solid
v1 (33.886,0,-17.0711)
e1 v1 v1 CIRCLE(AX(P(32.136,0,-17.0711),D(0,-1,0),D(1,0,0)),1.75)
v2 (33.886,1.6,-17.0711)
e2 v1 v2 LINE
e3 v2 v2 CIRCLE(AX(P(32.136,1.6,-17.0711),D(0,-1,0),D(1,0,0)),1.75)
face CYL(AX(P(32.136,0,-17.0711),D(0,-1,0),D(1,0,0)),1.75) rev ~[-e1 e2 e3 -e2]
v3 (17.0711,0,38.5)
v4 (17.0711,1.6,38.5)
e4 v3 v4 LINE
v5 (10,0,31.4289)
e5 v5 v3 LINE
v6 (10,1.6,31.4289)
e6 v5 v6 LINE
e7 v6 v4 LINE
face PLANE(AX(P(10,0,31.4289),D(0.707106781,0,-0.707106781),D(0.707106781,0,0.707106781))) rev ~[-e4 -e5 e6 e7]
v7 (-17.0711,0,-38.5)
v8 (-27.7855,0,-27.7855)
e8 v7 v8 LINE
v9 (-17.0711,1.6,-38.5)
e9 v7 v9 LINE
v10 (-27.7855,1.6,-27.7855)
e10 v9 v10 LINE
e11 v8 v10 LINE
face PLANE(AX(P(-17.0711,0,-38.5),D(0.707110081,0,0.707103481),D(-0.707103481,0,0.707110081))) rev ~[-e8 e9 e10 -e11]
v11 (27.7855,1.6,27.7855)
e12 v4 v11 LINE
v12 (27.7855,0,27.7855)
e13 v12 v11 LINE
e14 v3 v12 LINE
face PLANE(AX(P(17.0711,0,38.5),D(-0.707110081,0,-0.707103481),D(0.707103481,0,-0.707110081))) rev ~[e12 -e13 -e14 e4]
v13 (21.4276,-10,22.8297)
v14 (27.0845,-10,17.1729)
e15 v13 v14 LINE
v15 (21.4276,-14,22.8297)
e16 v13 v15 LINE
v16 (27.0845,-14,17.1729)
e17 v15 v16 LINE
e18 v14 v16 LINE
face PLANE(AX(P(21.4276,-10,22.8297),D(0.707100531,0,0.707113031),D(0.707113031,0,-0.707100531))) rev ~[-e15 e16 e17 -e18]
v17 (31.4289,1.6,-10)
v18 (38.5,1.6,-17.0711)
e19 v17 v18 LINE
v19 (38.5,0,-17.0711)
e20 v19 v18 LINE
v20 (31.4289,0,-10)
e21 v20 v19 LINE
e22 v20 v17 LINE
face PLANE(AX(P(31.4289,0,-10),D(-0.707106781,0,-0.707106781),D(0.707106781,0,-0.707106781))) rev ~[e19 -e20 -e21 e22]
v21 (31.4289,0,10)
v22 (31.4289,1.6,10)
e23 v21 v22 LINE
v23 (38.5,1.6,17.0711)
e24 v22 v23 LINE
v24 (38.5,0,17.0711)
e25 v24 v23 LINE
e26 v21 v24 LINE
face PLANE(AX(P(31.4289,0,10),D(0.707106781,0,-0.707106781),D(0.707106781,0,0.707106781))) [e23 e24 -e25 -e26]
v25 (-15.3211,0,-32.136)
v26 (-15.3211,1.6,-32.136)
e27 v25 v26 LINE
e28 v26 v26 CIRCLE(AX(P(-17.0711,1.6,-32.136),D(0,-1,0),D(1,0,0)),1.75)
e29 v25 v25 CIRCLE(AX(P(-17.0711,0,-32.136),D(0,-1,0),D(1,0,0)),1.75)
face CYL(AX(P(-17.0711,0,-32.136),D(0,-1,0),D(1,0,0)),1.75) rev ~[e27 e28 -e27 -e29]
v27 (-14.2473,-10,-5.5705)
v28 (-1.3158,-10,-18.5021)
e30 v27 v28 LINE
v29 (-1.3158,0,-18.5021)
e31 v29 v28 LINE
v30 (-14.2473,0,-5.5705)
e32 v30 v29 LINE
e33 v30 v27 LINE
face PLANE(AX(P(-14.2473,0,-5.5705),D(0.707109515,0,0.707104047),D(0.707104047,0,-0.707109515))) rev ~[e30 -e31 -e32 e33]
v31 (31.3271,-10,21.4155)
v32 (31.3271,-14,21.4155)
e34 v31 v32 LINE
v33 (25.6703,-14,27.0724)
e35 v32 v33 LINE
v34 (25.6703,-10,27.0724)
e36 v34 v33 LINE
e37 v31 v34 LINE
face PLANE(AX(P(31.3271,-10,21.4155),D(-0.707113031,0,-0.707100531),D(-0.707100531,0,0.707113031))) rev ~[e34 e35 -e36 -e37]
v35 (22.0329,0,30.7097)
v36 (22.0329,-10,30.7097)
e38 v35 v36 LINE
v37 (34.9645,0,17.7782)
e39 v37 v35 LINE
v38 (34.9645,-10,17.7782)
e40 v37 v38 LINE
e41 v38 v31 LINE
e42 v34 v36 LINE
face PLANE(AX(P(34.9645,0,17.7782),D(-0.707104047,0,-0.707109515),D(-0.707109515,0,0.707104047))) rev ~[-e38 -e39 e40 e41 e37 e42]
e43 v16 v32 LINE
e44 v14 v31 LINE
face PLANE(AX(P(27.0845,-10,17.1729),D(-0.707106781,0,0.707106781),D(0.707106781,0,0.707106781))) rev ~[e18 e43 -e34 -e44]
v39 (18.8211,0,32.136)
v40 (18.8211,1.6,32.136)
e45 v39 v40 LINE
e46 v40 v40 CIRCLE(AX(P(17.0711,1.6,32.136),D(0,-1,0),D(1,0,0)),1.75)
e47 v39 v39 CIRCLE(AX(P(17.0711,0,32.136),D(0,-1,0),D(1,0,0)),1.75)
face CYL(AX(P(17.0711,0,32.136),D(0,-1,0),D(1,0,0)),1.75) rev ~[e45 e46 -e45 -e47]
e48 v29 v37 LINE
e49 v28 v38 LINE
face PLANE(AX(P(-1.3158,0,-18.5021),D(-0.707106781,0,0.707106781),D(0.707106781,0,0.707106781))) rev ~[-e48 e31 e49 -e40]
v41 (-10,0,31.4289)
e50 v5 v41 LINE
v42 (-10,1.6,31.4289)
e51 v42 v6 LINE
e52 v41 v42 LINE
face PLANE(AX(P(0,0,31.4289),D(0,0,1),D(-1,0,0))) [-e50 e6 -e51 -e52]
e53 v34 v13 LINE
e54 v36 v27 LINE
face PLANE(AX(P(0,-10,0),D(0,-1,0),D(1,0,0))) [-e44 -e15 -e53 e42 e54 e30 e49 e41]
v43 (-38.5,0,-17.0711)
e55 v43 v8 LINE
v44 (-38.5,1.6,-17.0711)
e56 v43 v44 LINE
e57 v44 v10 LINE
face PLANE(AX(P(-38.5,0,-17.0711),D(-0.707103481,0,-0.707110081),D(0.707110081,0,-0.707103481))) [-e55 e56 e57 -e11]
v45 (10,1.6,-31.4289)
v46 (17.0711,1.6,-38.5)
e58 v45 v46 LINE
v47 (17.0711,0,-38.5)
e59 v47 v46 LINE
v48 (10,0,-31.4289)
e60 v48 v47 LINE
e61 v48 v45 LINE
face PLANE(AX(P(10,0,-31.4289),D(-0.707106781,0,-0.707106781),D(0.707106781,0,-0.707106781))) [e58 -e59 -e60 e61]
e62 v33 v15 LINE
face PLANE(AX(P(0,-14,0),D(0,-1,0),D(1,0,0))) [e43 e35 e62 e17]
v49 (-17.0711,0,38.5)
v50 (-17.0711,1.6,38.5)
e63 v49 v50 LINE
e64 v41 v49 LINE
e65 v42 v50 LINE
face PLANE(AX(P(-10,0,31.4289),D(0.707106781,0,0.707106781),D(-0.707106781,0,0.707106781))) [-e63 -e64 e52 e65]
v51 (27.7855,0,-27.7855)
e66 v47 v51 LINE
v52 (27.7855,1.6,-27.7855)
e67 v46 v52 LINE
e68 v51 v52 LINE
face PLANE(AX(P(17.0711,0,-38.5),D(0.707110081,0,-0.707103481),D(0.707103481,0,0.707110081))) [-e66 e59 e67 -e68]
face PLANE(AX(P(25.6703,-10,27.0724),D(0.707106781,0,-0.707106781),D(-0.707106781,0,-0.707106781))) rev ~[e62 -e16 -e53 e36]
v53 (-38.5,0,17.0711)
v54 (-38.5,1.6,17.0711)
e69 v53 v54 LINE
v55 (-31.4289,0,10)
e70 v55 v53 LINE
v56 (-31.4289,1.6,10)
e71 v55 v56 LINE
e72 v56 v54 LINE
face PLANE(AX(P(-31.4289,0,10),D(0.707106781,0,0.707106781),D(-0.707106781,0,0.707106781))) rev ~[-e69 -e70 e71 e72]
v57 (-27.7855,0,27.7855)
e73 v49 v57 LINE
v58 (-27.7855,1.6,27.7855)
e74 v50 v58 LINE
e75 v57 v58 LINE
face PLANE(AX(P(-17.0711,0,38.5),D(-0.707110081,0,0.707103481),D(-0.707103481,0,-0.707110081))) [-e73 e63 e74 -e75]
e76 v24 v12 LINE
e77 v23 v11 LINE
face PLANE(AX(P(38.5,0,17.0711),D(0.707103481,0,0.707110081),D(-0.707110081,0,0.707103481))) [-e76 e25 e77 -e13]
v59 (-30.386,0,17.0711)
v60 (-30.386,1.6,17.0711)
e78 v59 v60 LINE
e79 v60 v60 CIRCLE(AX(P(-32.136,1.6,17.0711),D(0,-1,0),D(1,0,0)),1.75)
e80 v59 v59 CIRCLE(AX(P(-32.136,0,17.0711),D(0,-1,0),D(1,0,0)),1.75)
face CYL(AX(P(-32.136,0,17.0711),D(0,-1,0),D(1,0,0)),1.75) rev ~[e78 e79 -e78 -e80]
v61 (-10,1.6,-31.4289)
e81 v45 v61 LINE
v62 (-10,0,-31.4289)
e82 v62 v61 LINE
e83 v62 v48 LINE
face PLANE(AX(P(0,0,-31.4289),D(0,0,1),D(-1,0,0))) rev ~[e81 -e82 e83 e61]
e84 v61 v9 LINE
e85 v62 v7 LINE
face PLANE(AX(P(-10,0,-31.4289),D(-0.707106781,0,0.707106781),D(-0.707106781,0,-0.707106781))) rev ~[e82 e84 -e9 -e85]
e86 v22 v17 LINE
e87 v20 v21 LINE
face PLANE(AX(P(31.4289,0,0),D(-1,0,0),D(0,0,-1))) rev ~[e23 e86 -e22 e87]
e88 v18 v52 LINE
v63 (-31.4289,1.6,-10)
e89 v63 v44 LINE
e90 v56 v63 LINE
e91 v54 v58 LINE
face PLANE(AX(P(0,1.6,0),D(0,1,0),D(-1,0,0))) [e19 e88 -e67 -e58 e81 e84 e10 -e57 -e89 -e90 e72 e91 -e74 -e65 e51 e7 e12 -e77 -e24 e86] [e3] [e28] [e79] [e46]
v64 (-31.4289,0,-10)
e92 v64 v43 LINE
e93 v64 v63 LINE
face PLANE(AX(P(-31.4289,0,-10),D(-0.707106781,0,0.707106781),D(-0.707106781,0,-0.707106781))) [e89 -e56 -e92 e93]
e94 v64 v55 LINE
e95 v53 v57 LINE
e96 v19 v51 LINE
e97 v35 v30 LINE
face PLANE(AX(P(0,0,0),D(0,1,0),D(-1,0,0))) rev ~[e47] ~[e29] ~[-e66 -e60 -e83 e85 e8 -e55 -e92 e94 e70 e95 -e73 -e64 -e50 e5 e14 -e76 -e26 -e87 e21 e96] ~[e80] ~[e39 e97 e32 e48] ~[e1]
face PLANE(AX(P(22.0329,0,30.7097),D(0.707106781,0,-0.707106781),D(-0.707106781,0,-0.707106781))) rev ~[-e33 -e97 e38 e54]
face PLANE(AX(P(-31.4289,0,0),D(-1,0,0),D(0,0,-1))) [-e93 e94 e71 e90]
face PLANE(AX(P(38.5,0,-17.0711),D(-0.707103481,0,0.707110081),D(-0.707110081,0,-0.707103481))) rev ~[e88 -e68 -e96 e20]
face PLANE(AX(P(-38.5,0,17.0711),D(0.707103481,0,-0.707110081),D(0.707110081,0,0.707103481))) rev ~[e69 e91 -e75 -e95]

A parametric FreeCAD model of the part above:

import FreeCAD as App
import Part
import Sketcher

V = App.Vector
Q = App.Units.Quantity


def add_polygon(sketch, points):
    """Adds a closed chain of lines whose ends are joined by coincident constraints."""
    first, n = sketch.GeometryCount, len(points)
    for a, b in zip(points, points[1:] + points[:1]):
        sketch.addGeometry(Part.LineSegment(App.Vector(*a, 0), App.Vector(*b, 0)), False)
    for i in range(n):
        sketch.addConstraint(Sketcher.Constraint("Coincident", first + i, 2, first + (i + 1) % n, 1))

doc = App.newDocument("Part")
params = doc.addObject("Spreadsheet::Sheet", "Params")
for row, (alias, value) in enumerate([
    ("sketch1_length", "10 mm"),
    ("pad1_length", "1.6 mm"),
    ("sketch2_diameter", "3.5 mm"),
    ("pad2_length", "10 mm"),
    ("sketch4_length", "6 mm"),
    ("sketch4_length2", "8 mm"),
    ("pad3_length", "4 mm"),
], start=1):
    params.set(f"A{row}", alias)
    params.set(f"B{row}", "=" + value)
    params.setAlias(f"B{row}", alias)

body = doc.addObject("PartDesign::Body", "Body")

sketch1 = doc.addObject("Sketcher::SketchObject", "Sketch")
body.addObject(sketch1)
sketch1.AttachmentSupport = (doc.XZ_Plane, [""])
sketch1.MapMode = "FlatFace"
add_polygon(sketch1, [(-31, -10), (-31, 10), (-38, 17), (-28, 28), (-17, 38), (-10, 31), (10, 31), (17, 38), (28, 28), (38, 17), (31, 10), (31, -10), (38, -17), (28, -28), (17, -38), (10, -31), (-10, -31), (-17, -38), (-28, -28), (-38, -17)])
sketch1.addConstraint([
    Sketcher.Constraint("Vertical", 0),
    Sketcher.Constraint("Horizontal", 5),
    Sketcher.Constraint("Vertical", 10),
    Sketcher.Constraint("Horizontal", 15),
    Sketcher.Constraint("Symmetric", 0, 2, 10, 2, -1, 1),
    Sketcher.Constraint("Symmetric", 1, 2, 11, 2, -1, 1),
    Sketcher.Constraint("Symmetric", 2, 2, 12, 2, -1, 1),
    Sketcher.Constraint("Symmetric", 3, 2, 13, 2, -1, 1),
    Sketcher.Constraint("Symmetric", 4, 2, 14, 2, -1, 1),
    Sketcher.Constraint("Symmetric", 6, 2, 16, 2, -1, 1),
    Sketcher.Constraint("Symmetric", 7, 2, 17, 2, -1, 1),
    Sketcher.Constraint("Symmetric", 8, 2, 18, 2, -1, 1),
    Sketcher.Constraint("Symmetric", 3, 2, 6, 2, -2),
    Sketcher.Constraint("Symmetric", 2, 2, 7, 2, -2),
    Sketcher.Constraint("Symmetric", 1, 2, 8, 2, -2),
    Sketcher.Constraint("Perpendicular", 1, 2),
    Sketcher.Constraint("Parallel", 2, 3),
    Sketcher.Constraint("Perpendicular", 3, 4),
    Sketcher.Constraint("Perpendicular", 4, 6),
    Sketcher.Constraint("Perpendicular", 6, 7),
    Sketcher.Constraint("Perpendicular", 8, 9),
    Sketcher.Constraint("Perpendicular", 14, 16),
    Sketcher.Constraint("Perpendicular", 18, 19),
    Sketcher.Constraint("Equal", 15, 0),
    Sketcher.Constraint("Equal", 2, 3),
    Sketcher.Constraint("Equal", 1, 4),
    Sketcher.Constraint("Distance", 1, Q("10 mm")),
    Sketcher.Constraint("DistanceY", -1, 1, 0, 2, Q("10 mm")),
    Sketcher.Constraint("DistanceX", 1, 2, -1, 1, Q("38.5 mm")),
])
sketch1.setExpression("Constraints[46]", "Params.sketch1_length")
pad1 = doc.addObject("PartDesign::Pad", "Pad")
body.addObject(pad1)
pad1.Profile = sketch1
pad1.setExpression("Length", "Params.pad1_length")
pad1.Reversed = True

sketch2 = doc.addObject("Sketcher::SketchObject", "Sketch001")
body.addObject(sketch2)
sketch2.AttachmentSupport = (doc.XZ_Plane, [""])
sketch2.MapMode = "FlatFace"
sketch2.addGeometry([
    Part.Circle(V(-32.1, 17.1, 0), V(0, 0, 1), 1.8),
    Part.Circle(V(-17.1, -32.1, 0), V(0, 0, 1), 1.8),
    Part.Circle(V(32.1, -17.1, 0), V(0, 0, 1), 1.8),
    Part.Circle(V(17.1, 32.1, 0), V(0, 0, 1), 1.8),
], False)
sketch2.addConstraint([
    Sketcher.Constraint("Equal", 0, 1),
    Sketcher.Constraint("Equal", 1, 2),
    Sketcher.Constraint("Equal", 2, 3),
    Sketcher.Constraint("Symmetric", 0, 3, 2, 3, -1, 1),
    Sketcher.Constraint("Symmetric", 1, 3, 3, 3, -1, 1),
    Sketcher.Constraint("Diameter", 0, Q("3.5 mm")),
    Sketcher.Constraint("DistanceX", 0, 3, -1, 1, Q("32.136 mm")),
    Sketcher.Constraint("DistanceY", -1, 1, 0, 3, Q("17.071 mm")),
    Sketcher.Constraint("DistanceX", 1, 3, -1, 1, Q("17.071 mm")),
    Sketcher.Constraint("DistanceY", 1, 3, -1, 1, Q("32.136 mm")),
])
sketch2.setExpression("Constraints[5]", "Params.sketch2_diameter")
pocket1 = doc.addObject("PartDesign::Pocket", "Pocket")
body.addObject(pocket1)
pocket1.Profile = sketch2
pocket1.Type = "ThroughAll"

sketch3 = doc.addObject("Sketcher::SketchObject", "Sketch002")
body.addObject(sketch3)
sketch3.AttachmentSupport = (doc.XZ_Plane, [""])
sketch3.MapMode = "FlatFace"
add_polygon(sketch3, [(35, 18), (22, 31), (-14, -6), (-1, -19)])
sketch3.addConstraint([
    Sketcher.Constraint("Perpendicular", 0, 1),
    Sketcher.Constraint("Perpendicular", 1, 2),
    Sketcher.Constraint("Perpendicular", 2, 3),
    Sketcher.Constraint("Angle", 0, Q("135.0002 deg")),
    Sketcher.Constraint("Distance", 0, Q("18.288 mm")),
    Sketcher.Constraint("Distance", 1, Q("51.308 mm")),
    Sketcher.Constraint("DistanceX", -1, 1, 0, 2, Q("22.033 mm")),
    Sketcher.Constraint("DistanceY", 2, 2, -1, 1, Q("18.502 mm")),
])
pad2 = doc.addObject("PartDesign::Pad", "Pad001")
body.addObject(pad2)
pad2.Profile = sketch3
pad2.setExpression("Length", "Params.pad2_length")

sketch4 = doc.addObject("Sketcher::SketchObject", "Sketch003")
body.addObject(sketch4)
sketch4.AttachmentSupport = (doc.XZ_Plane, [""])
sketch4.MapMode = "FlatFace"
sketch4.AttachmentOffset = App.Placement(V(0, 0, 10), App.Rotation())
add_polygon(sketch4, [(26, 27), (21, 23), (27, 17), (31, 21)])
sketch4.addConstraint([
    Sketcher.Constraint("Perpendicular", 0, 1),
    Sketcher.Constraint("Perpendicular", 1, 2),
    Sketcher.Constraint("Perpendicular", 2, 3),
    Sketcher.Constraint("Distance", 0, Q("6 mm")),
    Sketcher.Constraint("Distance", 1, Q("8 mm")),
    Sketcher.Constraint("Angle", 0, Q("-135 deg")),
    Sketcher.Constraint("DistanceY", -1, 1, 1, 2, Q("17.173 mm")),
    Sketcher.Constraint("DistanceX", -1, 1, 2, 2, Q("31.327 mm")),
])
sketch4.setExpression("Constraints[7]", "Params.sketch4_length")
sketch4.setExpression("Constraints[8]", "Params.sketch4_length2")
pad3 = doc.addObject("PartDesign::Pad", "Pad002")
body.addObject(pad3)
pad3.Profile = sketch4
pad3.setExpression("Length", "Params.pad3_length")

doc.recompute()
